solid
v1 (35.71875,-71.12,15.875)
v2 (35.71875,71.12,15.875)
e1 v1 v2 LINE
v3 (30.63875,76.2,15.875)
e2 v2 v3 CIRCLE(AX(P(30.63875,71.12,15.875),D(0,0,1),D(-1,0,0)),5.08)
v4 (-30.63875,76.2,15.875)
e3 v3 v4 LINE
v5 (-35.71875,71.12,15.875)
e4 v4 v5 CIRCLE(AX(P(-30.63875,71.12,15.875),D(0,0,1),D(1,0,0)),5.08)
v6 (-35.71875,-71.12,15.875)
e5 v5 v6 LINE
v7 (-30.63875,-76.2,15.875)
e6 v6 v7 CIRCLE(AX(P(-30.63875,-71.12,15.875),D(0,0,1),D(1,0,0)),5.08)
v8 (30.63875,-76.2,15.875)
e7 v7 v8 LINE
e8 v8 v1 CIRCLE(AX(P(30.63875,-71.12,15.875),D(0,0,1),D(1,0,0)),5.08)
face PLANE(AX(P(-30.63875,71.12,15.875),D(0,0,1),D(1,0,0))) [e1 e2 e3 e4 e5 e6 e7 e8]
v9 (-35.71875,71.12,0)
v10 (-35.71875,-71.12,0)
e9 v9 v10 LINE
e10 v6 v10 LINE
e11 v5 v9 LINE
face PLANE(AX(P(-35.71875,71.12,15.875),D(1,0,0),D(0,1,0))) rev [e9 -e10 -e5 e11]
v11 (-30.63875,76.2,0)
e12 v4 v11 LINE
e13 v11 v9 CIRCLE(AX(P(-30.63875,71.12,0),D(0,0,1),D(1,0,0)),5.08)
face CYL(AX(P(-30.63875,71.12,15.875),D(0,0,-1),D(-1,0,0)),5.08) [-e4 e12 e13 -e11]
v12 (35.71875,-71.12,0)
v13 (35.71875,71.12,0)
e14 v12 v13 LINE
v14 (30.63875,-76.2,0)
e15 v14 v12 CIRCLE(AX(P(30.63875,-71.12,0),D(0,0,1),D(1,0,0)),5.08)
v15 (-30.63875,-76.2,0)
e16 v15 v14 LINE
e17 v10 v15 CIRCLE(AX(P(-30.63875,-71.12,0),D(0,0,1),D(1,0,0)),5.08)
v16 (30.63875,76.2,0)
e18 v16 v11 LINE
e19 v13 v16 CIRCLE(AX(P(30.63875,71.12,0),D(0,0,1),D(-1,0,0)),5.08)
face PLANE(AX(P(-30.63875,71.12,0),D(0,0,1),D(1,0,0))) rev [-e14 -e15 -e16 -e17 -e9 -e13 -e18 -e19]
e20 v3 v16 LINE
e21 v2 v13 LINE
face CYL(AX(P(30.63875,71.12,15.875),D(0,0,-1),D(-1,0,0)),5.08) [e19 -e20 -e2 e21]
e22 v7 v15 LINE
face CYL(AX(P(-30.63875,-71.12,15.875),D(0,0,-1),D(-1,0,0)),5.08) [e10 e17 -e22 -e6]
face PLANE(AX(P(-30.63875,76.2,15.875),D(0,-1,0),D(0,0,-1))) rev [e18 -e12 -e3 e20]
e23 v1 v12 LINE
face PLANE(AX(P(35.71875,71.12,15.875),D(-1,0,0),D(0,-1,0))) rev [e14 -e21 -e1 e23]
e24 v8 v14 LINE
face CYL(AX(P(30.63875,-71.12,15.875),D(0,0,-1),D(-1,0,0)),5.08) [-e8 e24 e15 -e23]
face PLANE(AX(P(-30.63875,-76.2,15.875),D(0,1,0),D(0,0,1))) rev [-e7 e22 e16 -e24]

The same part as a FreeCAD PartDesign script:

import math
import FreeCAD as App
import Part
import Sketcher

V = App.Vector
Q = App.Units.Quantity

doc = App.newDocument("Part")
body = doc.addObject("PartDesign::Body", "Body")

# Sketch on XY plane
sketch1 = doc.addObject("Sketcher::SketchObject", "Sketch")
body.addObject(sketch1)
sketch1.AttachmentSupport = (doc.XY_Plane, [""])
sketch1.MapMode = "FlatFace"
sketch1.addGeometry([
    Part.LineSegment(V(31, 76, 0), V(-31, 76, 0)),  # 0
    Part.ArcOfCircle(Part.Circle(V(-31, 71, 0), V(0, 0, 1), 5), math.radians(90), math.radians(180)),  # 1
    Part.LineSegment(V(-36, 71, 0), V(-36, -71, 0)),  # 2
    Part.ArcOfCircle(Part.Circle(V(-31, -71, 0), V(0, 0, 1), 5), math.radians(-180), math.radians(-90)),  # 3
    Part.LineSegment(V(-31, -76, 0), V(31, -76, 0)),  # 4
    Part.ArcOfCircle(Part.Circle(V(31, -71, 0), V(0, 0, 1), 5), math.radians(-90), math.radians(0)),  # 5
    Part.LineSegment(V(36, -71, 0), V(36, 71, 0)),  # 6
    Part.ArcOfCircle(Part.Circle(V(31, 71, 0), V(0, 0, 1), 5), math.radians(0), math.radians(90)),  # 7
], False)
sketch1.addConstraint([
    Sketcher.Constraint("Tangent", 0, 2, 1, 1),
    Sketcher.Constraint("Tangent", 1, 2, 2, 1),
    Sketcher.Constraint("Tangent", 2, 2, 3, 1),
    Sketcher.Constraint("Tangent", 3, 2, 4, 1),
    Sketcher.Constraint("Tangent", 4, 2, 5, 1),
    Sketcher.Constraint("Tangent", 5, 2, 6, 1),
    Sketcher.Constraint("Tangent", 6, 2, 7, 1),
    Sketcher.Constraint("Tangent", 7, 2, 0, 1),
    Sketcher.Constraint("Horizontal", 0),
    Sketcher.Constraint("Vertical", 2),
    Sketcher.Constraint("Horizontal", 4),
    Sketcher.Constraint("Vertical", 6),
    Sketcher.Constraint("Equal", 1, 3),
    Sketcher.Constraint("Equal", 3, 5),
    Sketcher.Constraint("Equal", 5, 7),
    Sketcher.Constraint("Symmetric", 1, 3, 5, 3, -1, 1),
    Sketcher.Constraint("Radius", 1, Q("0.2 in")),
    Sketcher.Constraint("DistanceY", 2, 2, 2, 1, Q("5.6 in")),
    Sketcher.Constraint("DistanceX", 0, 2, 0, 1, Q("2.4125 in")),
])
pad1 = doc.addObject("PartDesign::Pad", "Pad")
body.addObject(pad1)
pad1.Profile = sketch1
pad1.Length = Q("0.625 in")

doc.recompute()
